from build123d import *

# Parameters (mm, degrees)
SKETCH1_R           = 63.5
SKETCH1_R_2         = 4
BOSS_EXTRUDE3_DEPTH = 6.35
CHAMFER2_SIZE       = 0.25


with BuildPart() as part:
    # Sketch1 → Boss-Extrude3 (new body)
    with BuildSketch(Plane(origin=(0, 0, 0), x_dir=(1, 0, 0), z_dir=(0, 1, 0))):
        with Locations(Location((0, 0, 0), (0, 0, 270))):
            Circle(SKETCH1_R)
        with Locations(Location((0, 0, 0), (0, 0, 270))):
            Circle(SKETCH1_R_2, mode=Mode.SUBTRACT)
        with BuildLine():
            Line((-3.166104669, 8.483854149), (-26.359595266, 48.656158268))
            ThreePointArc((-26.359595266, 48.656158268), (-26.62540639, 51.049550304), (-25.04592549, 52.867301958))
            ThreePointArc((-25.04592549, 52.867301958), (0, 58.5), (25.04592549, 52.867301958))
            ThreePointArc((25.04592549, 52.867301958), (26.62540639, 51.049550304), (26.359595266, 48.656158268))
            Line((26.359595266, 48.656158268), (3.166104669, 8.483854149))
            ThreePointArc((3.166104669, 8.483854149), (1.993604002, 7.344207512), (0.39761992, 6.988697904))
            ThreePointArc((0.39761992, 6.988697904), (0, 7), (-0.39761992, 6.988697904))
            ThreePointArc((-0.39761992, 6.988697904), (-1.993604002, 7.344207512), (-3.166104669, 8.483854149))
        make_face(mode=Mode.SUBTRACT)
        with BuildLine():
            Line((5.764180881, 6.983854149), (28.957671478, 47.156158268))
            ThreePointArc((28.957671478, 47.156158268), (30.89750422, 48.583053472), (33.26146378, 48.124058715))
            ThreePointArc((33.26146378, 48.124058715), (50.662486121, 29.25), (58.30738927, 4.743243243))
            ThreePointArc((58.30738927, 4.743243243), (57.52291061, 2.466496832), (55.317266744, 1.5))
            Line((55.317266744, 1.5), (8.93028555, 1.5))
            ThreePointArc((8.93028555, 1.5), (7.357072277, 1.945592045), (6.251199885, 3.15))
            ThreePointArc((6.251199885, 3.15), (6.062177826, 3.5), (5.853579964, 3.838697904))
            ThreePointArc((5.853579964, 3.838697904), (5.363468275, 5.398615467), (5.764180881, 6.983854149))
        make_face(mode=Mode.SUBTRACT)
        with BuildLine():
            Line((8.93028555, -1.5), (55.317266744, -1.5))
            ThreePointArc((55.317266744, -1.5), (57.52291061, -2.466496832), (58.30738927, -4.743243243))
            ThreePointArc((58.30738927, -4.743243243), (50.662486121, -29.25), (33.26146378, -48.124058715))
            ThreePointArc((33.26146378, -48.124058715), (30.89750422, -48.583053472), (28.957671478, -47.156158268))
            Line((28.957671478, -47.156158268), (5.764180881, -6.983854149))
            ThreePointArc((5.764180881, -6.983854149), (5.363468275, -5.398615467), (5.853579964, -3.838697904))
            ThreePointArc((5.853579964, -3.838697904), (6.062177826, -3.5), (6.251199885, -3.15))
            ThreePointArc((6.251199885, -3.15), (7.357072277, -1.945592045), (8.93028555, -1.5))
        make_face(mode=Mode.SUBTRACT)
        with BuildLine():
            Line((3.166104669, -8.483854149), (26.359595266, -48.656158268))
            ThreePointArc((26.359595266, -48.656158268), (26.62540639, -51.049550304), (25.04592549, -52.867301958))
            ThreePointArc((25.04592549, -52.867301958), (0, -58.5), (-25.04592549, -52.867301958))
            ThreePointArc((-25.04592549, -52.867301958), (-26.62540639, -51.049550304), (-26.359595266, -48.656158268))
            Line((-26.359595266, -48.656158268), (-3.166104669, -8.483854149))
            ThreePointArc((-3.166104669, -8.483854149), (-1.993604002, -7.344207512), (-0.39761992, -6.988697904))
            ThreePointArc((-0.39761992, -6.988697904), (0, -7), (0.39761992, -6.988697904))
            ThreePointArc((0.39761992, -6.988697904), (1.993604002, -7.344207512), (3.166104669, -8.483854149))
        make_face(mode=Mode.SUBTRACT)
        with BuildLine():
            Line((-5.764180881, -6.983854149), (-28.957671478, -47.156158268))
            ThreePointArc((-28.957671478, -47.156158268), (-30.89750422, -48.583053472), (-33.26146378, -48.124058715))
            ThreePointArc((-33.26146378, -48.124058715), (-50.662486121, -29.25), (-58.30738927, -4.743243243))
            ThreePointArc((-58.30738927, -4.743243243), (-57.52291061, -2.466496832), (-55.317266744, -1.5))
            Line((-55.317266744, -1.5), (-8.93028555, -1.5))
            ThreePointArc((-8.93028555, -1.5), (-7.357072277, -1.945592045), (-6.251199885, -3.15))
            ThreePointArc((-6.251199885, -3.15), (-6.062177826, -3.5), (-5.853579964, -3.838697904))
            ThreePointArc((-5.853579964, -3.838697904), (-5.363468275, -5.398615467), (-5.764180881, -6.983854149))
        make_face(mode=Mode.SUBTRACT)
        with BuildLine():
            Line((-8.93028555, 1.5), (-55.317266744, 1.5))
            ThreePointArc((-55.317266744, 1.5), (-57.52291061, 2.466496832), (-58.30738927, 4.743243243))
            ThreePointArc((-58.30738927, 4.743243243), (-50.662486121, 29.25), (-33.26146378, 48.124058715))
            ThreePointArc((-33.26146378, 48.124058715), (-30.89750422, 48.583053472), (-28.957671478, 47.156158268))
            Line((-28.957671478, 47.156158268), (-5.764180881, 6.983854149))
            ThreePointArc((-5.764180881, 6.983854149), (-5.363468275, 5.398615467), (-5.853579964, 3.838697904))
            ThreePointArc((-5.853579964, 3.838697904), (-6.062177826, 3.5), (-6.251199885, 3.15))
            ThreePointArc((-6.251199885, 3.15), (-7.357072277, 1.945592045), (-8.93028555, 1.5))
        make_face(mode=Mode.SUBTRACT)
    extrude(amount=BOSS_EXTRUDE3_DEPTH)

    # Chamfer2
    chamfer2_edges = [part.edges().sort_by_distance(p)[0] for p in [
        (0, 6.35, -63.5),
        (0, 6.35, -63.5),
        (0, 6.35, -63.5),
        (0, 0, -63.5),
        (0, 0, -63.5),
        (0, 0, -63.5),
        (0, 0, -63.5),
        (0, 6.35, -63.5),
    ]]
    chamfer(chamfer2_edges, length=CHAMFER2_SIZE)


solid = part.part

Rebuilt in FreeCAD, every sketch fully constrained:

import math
import FreeCAD as App
import Part
import Sketcher
from FreeCAD import Vector
Q = App.Units.Quantity


def edges_at(feature, points):
    """Names of the edges that pass closest to the given points."""
    edges = feature.Shape.Edges
    near = lambda p: min(range(len(edges)), key=lambda i: edges[i].distToShape(Part.Vertex(*p))[0])
    return sorted({f"Edge{near(p) + 1}" for p in points})

doc = App.newDocument("Part")
params = doc.addObject("Spreadsheet::Sheet", "Params")
for row, (alias, value) in enumerate([
    ("sketch1_diameter", "127 mm"),
    ("sketch1_diameter2", "8 mm"),
    ("sketch1_radius", "3 mm"),
    ("sketch1_radius2", "7 mm"),
    ("sketch1_radius3", "58.5 mm"),
    ("pad1_length", "6.35 mm"),
    ("chamfer_size", "0.25 mm"),
], start=1):
    params.set(f"A{row}", alias)
    params.set(f"B{row}", "=" + value)
    params.setAlias(f"B{row}", alias)

body = doc.addObject("PartDesign::Body", "Body")

sketch1 = doc.addObject("Sketcher::SketchObject", "Sketch")
body.addObject(sketch1)
sketch1.AttachmentSupport = (doc.XZ_Plane, [""])
sketch1.MapMode = "FlatFace"
sketch1.addGeometry(Part.Circle(Vector(0, 0, 0), Vector(0, 0, 1), 63.5), False)
sketch1.addGeometry(Part.ArcOfCircle(Part.Circle(Vector(-8.9, -4.5, 0), Vector(0, 0, 1), 3), math.radians(27), math.radians(90)), False)
sketch1.addGeometry(Part.LineSegment(Vector(-8.9, -1.5, 0), Vector(-55.3, -1.5, 0)), False)
sketch1.addGeometry(Part.ArcOfCircle(Part.Circle(Vector(-55.3, -4.5, 0), Vector(0, 0, 1), 3), math.radians(90), math.radians(185)), False)
sketch1.addGeometry(Part.ArcOfCircle(Part.Circle(Vector(0, 0, 0), Vector(0, 0, 1), 58.5), math.radians(-175), math.radians(-125)), False)
sketch1.addGeometry(Part.ArcOfCircle(Part.Circle(Vector(-31.6, -45.7, 0), Vector(0, 0, 1), 3), math.radians(-125), math.radians(-30)), False)
sketch1.addGeometry(Part.LineSegment(Vector(-29, -47.2, 0), Vector(-5.8, -7, 0)), False)
sketch1.addGeometry(Part.ArcOfCircle(Part.Circle(Vector(-8.4, -5.5, 0), Vector(0, 0, 1), 3), math.radians(-30), math.radians(33)), False)
sketch1.addGeometry(Part.ArcOfCircle(Part.Circle(Vector(0, 0, 0), Vector(0, 0, 1), 7), math.radians(-153.26), math.radians(-146.74)), False)
sketch1.addGeometry(Part.ArcOfCircle(Part.Circle(Vector(-0.6, -10, 0), Vector(0, 0, 1), 3), math.radians(87), math.radians(150)), False)
sketch1.addGeometry(Part.LineSegment(Vector(-3.2, -8.5, 0), Vector(-26.4, -48.7, 0)), False)
sketch1.addGeometry(Part.ArcOfCircle(Part.Circle(Vector(-23.8, -50.2, 0), Vector(0, 0, 1), 3), math.radians(150), math.radians(245)), False)
sketch1.addGeometry(Part.ArcOfCircle(Part.Circle(Vector(0, 0, 0), Vector(0, 0, 1), 58.5), math.radians(-115), math.radians(-65)), False)
sketch1.addGeometry(Part.ArcOfCircle(Part.Circle(Vector(23.8, -50.2, 0), Vector(0, 0, 1), 3), math.radians(-65), math.radians(30)), False)
sketch1.addGeometry(Part.LineSegment(Vector(26.4, -48.7, 0), Vector(3.2, -8.5, 0)), False)
sketch1.addGeometry(Part.ArcOfCircle(Part.Circle(Vector(0.6, -10, 0), Vector(0, 0, 1), 3), math.radians(30), math.radians(93)), False)
sketch1.addGeometry(Part.ArcOfCircle(Part.Circle(Vector(0, 0, 0), Vector(0, 0, 1), 7), math.radians(-93.26), math.radians(-86.74)), False)
sketch1.addGeometry(Part.ArcOfCircle(Part.Circle(Vector(-8.4, 5.5, 0), Vector(0, 0, 1), 3), math.radians(-33), math.radians(30)), False)
sketch1.addGeometry(Part.LineSegment(Vector(-5.8, 7, 0), Vector(-29, 47.2, 0)), False)
sketch1.addGeometry(Part.ArcOfCircle(Part.Circle(Vector(-31.6, 45.7, 0), Vector(0, 0, 1), 3), math.radians(30), math.radians(125)), False)
sketch1.addGeometry(Part.ArcOfCircle(Part.Circle(Vector(0, 0, 0), Vector(0, 0, 1), 58.5), math.radians(125), math.radians(175)), False)
sketch1.addGeometry(Part.ArcOfCircle(Part.Circle(Vector(-55.3, 4.5, 0), Vector(0, 0, 1), 3), math.radians(175), math.radians(270)), False)
sketch1.addGeometry(Part.LineSegment(Vector(-55.3, 1.5, 0), Vector(-8.9, 1.5, 0)), False)
sketch1.addGeometry(Part.ArcOfCircle(Part.Circle(Vector(-8.9, 4.5, 0), Vector(0, 0, 1), 3), math.radians(-90), math.radians(-27)), False)
sketch1.addGeometry(Part.ArcOfCircle(Part.Circle(Vector(0, 0, 0), Vector(0, 0, 1), 7), math.radians(146.74), math.radians(153.26)), False)
sketch1.addGeometry(Part.ArcOfCircle(Part.Circle(Vector(8.4, -5.5, 0), Vector(0, 0, 1), 3), math.radians(147), math.radians(210)), False)
sketch1.addGeometry(Part.LineSegment(Vector(5.8, -7, 0), Vector(29, -47.2, 0)), False)
sketch1.addGeometry(Part.ArcOfCircle(Part.Circle(Vector(31.6, -45.7, 0), Vector(0, 0, 1), 3), math.radians(-150), math.radians(-55)), False)
sketch1.addGeometry(Part.ArcOfCircle(Part.Circle(Vector(0, 0, 0), Vector(0, 0, 1), 58.5), math.radians(-55), math.radians(-5)), False)
sketch1.addGeometry(Part.ArcOfCircle(Part.Circle(Vector(55.3, -4.5, 0), Vector(0, 0, 1), 3), math.radians(-5), math.radians(90)), False)
sketch1.addGeometry(Part.LineSegment(Vector(55.3, -1.5, 0), Vector(8.9, -1.5, 0)), False)
sketch1.addGeometry(Part.ArcOfCircle(Part.Circle(Vector(8.9, -4.5, 0), Vector(0, 0, 1), 3), math.radians(90), math.radians(153)), False)
sketch1.addGeometry(Part.ArcOfCircle(Part.Circle(Vector(0, 0, 0), Vector(0, 0, 1), 7), math.radians(-33.26), math.radians(-26.74)), False)
sketch1.addGeometry(Part.Circle(Vector(0, 0, 0), Vector(0, 0, 1), 4), False)
sketch1.addGeometry(Part.ArcOfCircle(Part.Circle(Vector(0.6, 10, 0), Vector(0, 0, 1), 3), math.radians(-93), math.radians(-30)), False)
sketch1.addGeometry(Part.LineSegment(Vector(3.2, 8.5, 0), Vector(26.4, 48.7, 0)), False)
sketch1.addGeometry(Part.ArcOfCircle(Part.Circle(Vector(23.8, 50.2, 0), Vector(0, 0, 1), 3), math.radians(-30), math.radians(65)), False)
sketch1.addGeometry(Part.ArcOfCircle(Part.Circle(Vector(0, 0, 0), Vector(0, 0, 1), 58.5), math.radians(65), math.radians(115)), False)
sketch1.addGeometry(Part.ArcOfCircle(Part.Circle(Vector(-23.8, 50.2, 0), Vector(0, 0, 1), 3), math.radians(115), math.radians(210)), False)
sketch1.addGeometry(Part.LineSegment(Vector(-26.4, 48.7, 0), Vector(-3.2, 8.5, 0)), False)
sketch1.addGeometry(Part.ArcOfCircle(Part.Circle(Vector(-0.6, 10, 0), Vector(0, 0, 1), 3), math.radians(-150), math.radians(-87)), False)
sketch1.addGeometry(Part.ArcOfCircle(Part.Circle(Vector(0, 0, 0), Vector(0, 0, 1), 7), math.radians(86.74), math.radians(93.26)), False)
sketch1.addGeometry(Part.ArcOfCircle(Part.Circle(Vector(8.9, 4.5, 0), Vector(0, 0, 1), 3), math.radians(-153), math.radians(-90)), False)
sketch1.addGeometry(Part.LineSegment(Vector(8.9, 1.5, 0), Vector(55.3, 1.5, 0)), False)
sketch1.addGeometry(Part.ArcOfCircle(Part.Circle(Vector(55.3, 4.5, 0), Vector(0, 0, 1), 3), math.radians(-90), math.radians(5)), False)
sketch1.addGeometry(Part.ArcOfCircle(Part.Circle(Vector(0, 0, 0), Vector(0, 0, 1), 58.5), math.radians(5), math.radians(55)), False)
sketch1.addGeometry(Part.ArcOfCircle(Part.Circle(Vector(31.6, 45.7, 0), Vector(0, 0, 1), 3), math.radians(55), math.radians(150)), False)
sketch1.addGeometry(Part.LineSegment(Vector(29, 47.2, 0), Vector(5.8, 7, 0)), False)
sketch1.addGeometry(Part.ArcOfCircle(Part.Circle(Vector(8.4, 5.5, 0), Vector(0, 0, 1), 3), math.radians(150), math.radians(213)), False)
sketch1.addGeometry(Part.ArcOfCircle(Part.Circle(Vector(0, 0, 0), Vector(0, 0, 1), 7), math.radians(26.74), math.radians(33.26)), False)
sketch1.addConstraint(Sketcher.Constraint("Tangent", 1, 2, 2, 1))
sketch1.addConstraint(Sketcher.Constraint("Tangent", 2, 2, 3, 1))
sketch1.addConstraint(Sketcher.Constraint("Tangent", 3, 2, 4, 1))
sketch1.addConstraint(Sketcher.Constraint("Tangent", 4, 2, 5, 1))
sketch1.addConstraint(Sketcher.Constraint("Tangent", 5, 2, 6, 1))
sketch1.addConstraint(Sketcher.Constraint("Tangent", 6, 2, 7, 1))
sketch1.addConstraint(Sketcher.Constraint("Tangent", 7, 2, 8, 2))
sketch1.addConstraint(Sketcher.Constraint("Tangent", 8, 1, 1, 1))
sketch1.addConstraint(Sketcher.Constraint("Tangent", 9, 2, 10, 1))
sketch1.addConstraint(Sketcher.Constraint("Tangent", 10, 2, 11, 1))
sketch1.addConstraint(Sketcher.Constraint("Tangent", 11, 2, 12, 1))
sketch1.addConstraint(Sketcher.Constraint("Tangent", 12, 2, 13, 1))
sketch1.addConstraint(Sketcher.Constraint("Tangent", 13, 2, 14, 1))
sketch1.addConstraint(Sketcher.Constraint("Tangent", 14, 2, 15, 1))
sketch1.addConstraint(Sketcher.Constraint("Tangent", 15, 2, 16, 2))
sketch1.addConstraint(Sketcher.Constraint("Tangent", 16, 1, 9, 1))
sketch1.addConstraint(Sketcher.Constraint("Tangent", 17, 2, 18, 1))
sketch1.addConstraint(Sketcher.Constraint("Tangent", 18, 2, 19, 1))
sketch1.addConstraint(Sketcher.Constraint("Tangent", 19, 2, 20, 1))
sketch1.addConstraint(Sketcher.Constraint("Tangent", 20, 2, 21, 1))
sketch1.addConstraint(Sketcher.Constraint("Tangent", 21, 2, 22, 1))
sketch1.addConstraint(Sketcher.Constraint("Tangent", 22, 2, 23, 1))
sketch1.addConstraint(Sketcher.Constraint("Tangent", 23, 2, 24, 2))
sketch1.addConstraint(Sketcher.Constraint("Tangent", 24, 1, 17, 1))
sketch1.addConstraint(Sketcher.Constraint("Tangent", 25, 2, 26, 1))
sketch1.addConstraint(Sketcher.Constraint("Tangent", 26, 2, 27, 1))
sketch1.addConstraint(Sketcher.Constraint("Tangent", 27, 2, 28, 1))
sketch1.addConstraint(Sketcher.Constraint("Tangent", 28, 2, 29, 1))
sketch1.addConstraint(Sketcher.Constraint("Tangent", 29, 2, 30, 1))
sketch1.addConstraint(Sketcher.Constraint("Tangent", 30, 2, 31, 1))
sketch1.addConstraint(Sketcher.Constraint("Tangent", 31, 2, 32, 2))
sketch1.addConstraint(Sketcher.Constraint("Tangent", 32, 1, 25, 1))
sketch1.addConstraint(Sketcher.Constraint("Tangent", 34, 2, 35, 1))
sketch1.addConstraint(Sketcher.Constraint("Tangent", 35, 2, 36, 1))
sketch1.addConstraint(Sketcher.Constraint("Tangent", 36, 2, 37, 1))
sketch1.addConstraint(Sketcher.Constraint("Tangent", 37, 2, 38, 1))
sketch1.addConstraint(Sketcher.Constraint("Tangent", 38, 2, 39, 1))
sketch1.addConstraint(Sketcher.Constraint("Tangent", 39, 2, 40, 1))
sketch1.addConstraint(Sketcher.Constraint("Tangent", 40, 2, 41, 2))
sketch1.addConstraint(Sketcher.Constraint("Tangent", 41, 1, 34, 1))
sketch1.addConstraint(Sketcher.Constraint("Tangent", 42, 2, 43, 1))
sketch1.addConstraint(Sketcher.Constraint("Tangent", 43, 2, 44, 1))
sketch1.addConstraint(Sketcher.Constraint("Tangent", 44, 2, 45, 1))
sketch1.addConstraint(Sketcher.Constraint("Tangent", 45, 2, 46, 1))
sketch1.addConstraint(Sketcher.Constraint("Tangent", 46, 2, 47, 1))
sketch1.addConstraint(Sketcher.Constraint("Tangent", 47, 2, 48, 1))
sketch1.addConstraint(Sketcher.Constraint("Tangent", 48, 2, 49, 2))
sketch1.addConstraint(Sketcher.Constraint("Tangent", 49, 1, 42, 1))
sketch1.addConstraint(Sketcher.Constraint("Horizontal", 2))
sketch1.addConstraint(Sketcher.Constraint("Horizontal", 22))
sketch1.addConstraint(Sketcher.Constraint("Horizontal", 30))
sketch1.addConstraint(Sketcher.Constraint("Horizontal", 43))
sketch1.addConstraint(Sketcher.Constraint("Coincident", 0, 3, -1, 1))
sketch1.addConstraint(Sketcher.Constraint("Coincident", 4, 3, -1, 1))
sketch1.addConstraint(Sketcher.Constraint("Coincident", 8, 3, -1, 1))
sketch1.addConstraint(Sketcher.Constraint("Coincident", 12, 3, -1, 1))
sketch1.addConstraint(Sketcher.Constraint("Coincident", 16, 3, -1, 1))
sketch1.addConstraint(Sketcher.Constraint("Coincident", 20, 3, -1, 1))
sketch1.addConstraint(Sketcher.Constraint("Coincident", 24, 3, -1, 1))
sketch1.addConstraint(Sketcher.Constraint("Coincident", 28, 3, -1, 1))
sketch1.addConstraint(Sketcher.Constraint("Coincident", 32, 3, -1, 1))
sketch1.addConstraint(Sketcher.Constraint("Coincident", 33, 3, -1, 1))
sketch1.addConstraint(Sketcher.Constraint("Coincident", 37, 3, -1, 1))
sketch1.addConstraint(Sketcher.Constraint("Coincident", 41, 3, -1, 1))
sketch1.addConstraint(Sketcher.Constraint("Coincident", 45, 3, -1, 1))
sketch1.addConstraint(Sketcher.Constraint("Coincident", 49, 3, -1, 1))
sketch1.addConstraint(Sketcher.Constraint("Equal", 1, 3))
sketch1.addConstraint(Sketcher.Constraint("Equal", 3, 5))
sketch1.addConstraint(Sketcher.Constraint("Equal", 5, 7))
sketch1.addConstraint(Sketcher.Constraint("Equal", 7, 9))
sketch1.addConstraint(Sketcher.Constraint("Equal", 9, 11))
sketch1.addConstraint(Sketcher.Constraint("Equal", 4, 12))
sketch1.addConstraint(Sketcher.Constraint("Equal", 11, 13))
sketch1.addConstraint(Sketcher.Constraint("Equal", 13, 15))
sketch1.addConstraint(Sketcher.Constraint("Equal", 8, 16))
sketch1.addConstraint(Sketcher.Constraint("Equal", 15, 17))
sketch1.addConstraint(Sketcher.Constraint("Equal", 17, 19))
sketch1.addConstraint(Sketcher.Constraint("Equal", 12, 20))
sketch1.addConstraint(Sketcher.Constraint("Equal", 19, 21))
sketch1.addConstraint(Sketcher.Constraint("Equal", 21, 23))
sketch1.addConstraint(Sketcher.Constraint("Equal", 16, 24))
sketch1.addConstraint(Sketcher.Constraint("Equal", 23, 25))
sketch1.addConstraint(Sketcher.Constraint("Equal", 25, 27))
sketch1.addConstraint(Sketcher.Constraint("Equal", 20, 28))
sketch1.addConstraint(Sketcher.Constraint("Equal", 27, 29))
sketch1.addConstraint(Sketcher.Constraint("Equal", 29, 31))
sketch1.addConstraint(Sketcher.Constraint("Equal", 24, 32))
sketch1.addConstraint(Sketcher.Constraint("Equal", 31, 34))
sketch1.addConstraint(Sketcher.Constraint("Equal", 34, 36))
sketch1.addConstraint(Sketcher.Constraint("Equal", 28, 37))
sketch1.addConstraint(Sketcher.Constraint("Equal", 36, 38))
sketch1.addConstraint(Sketcher.Constraint("Equal", 38, 40))
sketch1.addConstraint(Sketcher.Constraint("Equal", 32, 41))
sketch1.addConstraint(Sketcher.Constraint("Equal", 40, 42))
sketch1.addConstraint(Sketcher.Constraint("Equal", 42, 44))
sketch1.addConstraint(Sketcher.Constraint("Equal", 37, 45))
sketch1.addConstraint(Sketcher.Constraint("Equal", 44, 46))
sketch1.addConstraint(Sketcher.Constraint("Equal", 46, 48))
sketch1.addConstraint(Sketcher.Constraint("Equal", 41, 49))
sketch1.addConstraint(Sketcher.Constraint("Symmetric", 17, 2, 25, 2, -1, 1))
sketch1.addConstraint(Sketcher.Constraint("Symmetric", 9, 2, 34, 2, -1, 1))
sketch1.addConstraint(Sketcher.Constraint("Symmetric", 13, 2, 38, 2, -1, 1))
sketch1.addConstraint(Sketcher.Constraint("Symmetric", 5, 2, 46, 2, -1, 1))
sketch1.addConstraint(Sketcher.Constraint("Symmetric", 10, 2, 13, 2, -2))
sketch1.addConstraint(Sketcher.Constraint("Symmetric", 6, 2, 25, 2, -2))
sketch1.addConstraint(Sketcher.Constraint("Parallel", 6, 10))
sketch1.addConstraint(Sketcher.Constraint("Horizontal", 3, 3, 29, 3))
sketch1.addConstraint(Sketcher.Constraint("Horizontal", 23, 3, 42, 3))
sketch1.addConstraint(Sketcher.Constraint("Vertical", 3, 3, 21, 3))
sketch1.addConstraint(Sketcher.Constraint("Equal", 6, 10))
sketch1.addConstraint(Sketcher.Constraint("Diameter", 0, Q("127 mm")))
sketch1.addConstraint(Sketcher.Constraint("Diameter", 33, Q("8 mm")))
sketch1.addConstraint(Sketcher.Constraint("Radius", 1, Q("3 mm")))
sketch1.addConstraint(Sketcher.Constraint("Radius", 8, Q("7 mm")))
sketch1.addConstraint(Sketcher.Constraint("Radius", 4, Q("58.5 mm")))
sketch1.addConstraint(Sketcher.Constraint("Angle", 6, Q("60 deg")))
sketch1.addConstraint(Sketcher.Constraint("DistanceY", 1, 3, -1, 1, Q("4.5 mm")))
sketch1.addConstraint(Sketcher.Constraint("DistanceY", 11, 2, -1, 1, Q("52.867302 mm")))
sketch1.setExpression("Constraints[110]", "Params.sketch1_diameter")
sketch1.setExpression("Constraints[111]", "Params.sketch1_diameter2")
sketch1.setExpression("Constraints[112]", "Params.sketch1_radius")
sketch1.setExpression("Constraints[113]", "Params.sketch1_radius2")
sketch1.setExpression("Constraints[114]", "Params.sketch1_radius3")
pad1 = doc.addObject("PartDesign::Pad", "Pad")
body.addObject(pad1)
pad1.Profile = sketch1
pad1.setExpression("Length", "Params.pad1_length")
pad1.Reversed = True
doc.recompute()

chamfer = doc.addObject("PartDesign::Chamfer", "Chamfer")
body.addObject(chamfer)
chamfer.Base = (pad1, edges_at(pad1, [
    (0, 6.35, -63.5),
    (0, 6.35, -63.5),
    (0, 6.35, -63.5),
    (0, 0, -63.5),
    (0, 0, -63.5),
    (0, 0, -63.5),
    (0, 0, -63.5),
    (0, 6.35, -63.5),
]))
chamfer.setExpression("Size", "Params.chamfer_size")

doc.recompute()
